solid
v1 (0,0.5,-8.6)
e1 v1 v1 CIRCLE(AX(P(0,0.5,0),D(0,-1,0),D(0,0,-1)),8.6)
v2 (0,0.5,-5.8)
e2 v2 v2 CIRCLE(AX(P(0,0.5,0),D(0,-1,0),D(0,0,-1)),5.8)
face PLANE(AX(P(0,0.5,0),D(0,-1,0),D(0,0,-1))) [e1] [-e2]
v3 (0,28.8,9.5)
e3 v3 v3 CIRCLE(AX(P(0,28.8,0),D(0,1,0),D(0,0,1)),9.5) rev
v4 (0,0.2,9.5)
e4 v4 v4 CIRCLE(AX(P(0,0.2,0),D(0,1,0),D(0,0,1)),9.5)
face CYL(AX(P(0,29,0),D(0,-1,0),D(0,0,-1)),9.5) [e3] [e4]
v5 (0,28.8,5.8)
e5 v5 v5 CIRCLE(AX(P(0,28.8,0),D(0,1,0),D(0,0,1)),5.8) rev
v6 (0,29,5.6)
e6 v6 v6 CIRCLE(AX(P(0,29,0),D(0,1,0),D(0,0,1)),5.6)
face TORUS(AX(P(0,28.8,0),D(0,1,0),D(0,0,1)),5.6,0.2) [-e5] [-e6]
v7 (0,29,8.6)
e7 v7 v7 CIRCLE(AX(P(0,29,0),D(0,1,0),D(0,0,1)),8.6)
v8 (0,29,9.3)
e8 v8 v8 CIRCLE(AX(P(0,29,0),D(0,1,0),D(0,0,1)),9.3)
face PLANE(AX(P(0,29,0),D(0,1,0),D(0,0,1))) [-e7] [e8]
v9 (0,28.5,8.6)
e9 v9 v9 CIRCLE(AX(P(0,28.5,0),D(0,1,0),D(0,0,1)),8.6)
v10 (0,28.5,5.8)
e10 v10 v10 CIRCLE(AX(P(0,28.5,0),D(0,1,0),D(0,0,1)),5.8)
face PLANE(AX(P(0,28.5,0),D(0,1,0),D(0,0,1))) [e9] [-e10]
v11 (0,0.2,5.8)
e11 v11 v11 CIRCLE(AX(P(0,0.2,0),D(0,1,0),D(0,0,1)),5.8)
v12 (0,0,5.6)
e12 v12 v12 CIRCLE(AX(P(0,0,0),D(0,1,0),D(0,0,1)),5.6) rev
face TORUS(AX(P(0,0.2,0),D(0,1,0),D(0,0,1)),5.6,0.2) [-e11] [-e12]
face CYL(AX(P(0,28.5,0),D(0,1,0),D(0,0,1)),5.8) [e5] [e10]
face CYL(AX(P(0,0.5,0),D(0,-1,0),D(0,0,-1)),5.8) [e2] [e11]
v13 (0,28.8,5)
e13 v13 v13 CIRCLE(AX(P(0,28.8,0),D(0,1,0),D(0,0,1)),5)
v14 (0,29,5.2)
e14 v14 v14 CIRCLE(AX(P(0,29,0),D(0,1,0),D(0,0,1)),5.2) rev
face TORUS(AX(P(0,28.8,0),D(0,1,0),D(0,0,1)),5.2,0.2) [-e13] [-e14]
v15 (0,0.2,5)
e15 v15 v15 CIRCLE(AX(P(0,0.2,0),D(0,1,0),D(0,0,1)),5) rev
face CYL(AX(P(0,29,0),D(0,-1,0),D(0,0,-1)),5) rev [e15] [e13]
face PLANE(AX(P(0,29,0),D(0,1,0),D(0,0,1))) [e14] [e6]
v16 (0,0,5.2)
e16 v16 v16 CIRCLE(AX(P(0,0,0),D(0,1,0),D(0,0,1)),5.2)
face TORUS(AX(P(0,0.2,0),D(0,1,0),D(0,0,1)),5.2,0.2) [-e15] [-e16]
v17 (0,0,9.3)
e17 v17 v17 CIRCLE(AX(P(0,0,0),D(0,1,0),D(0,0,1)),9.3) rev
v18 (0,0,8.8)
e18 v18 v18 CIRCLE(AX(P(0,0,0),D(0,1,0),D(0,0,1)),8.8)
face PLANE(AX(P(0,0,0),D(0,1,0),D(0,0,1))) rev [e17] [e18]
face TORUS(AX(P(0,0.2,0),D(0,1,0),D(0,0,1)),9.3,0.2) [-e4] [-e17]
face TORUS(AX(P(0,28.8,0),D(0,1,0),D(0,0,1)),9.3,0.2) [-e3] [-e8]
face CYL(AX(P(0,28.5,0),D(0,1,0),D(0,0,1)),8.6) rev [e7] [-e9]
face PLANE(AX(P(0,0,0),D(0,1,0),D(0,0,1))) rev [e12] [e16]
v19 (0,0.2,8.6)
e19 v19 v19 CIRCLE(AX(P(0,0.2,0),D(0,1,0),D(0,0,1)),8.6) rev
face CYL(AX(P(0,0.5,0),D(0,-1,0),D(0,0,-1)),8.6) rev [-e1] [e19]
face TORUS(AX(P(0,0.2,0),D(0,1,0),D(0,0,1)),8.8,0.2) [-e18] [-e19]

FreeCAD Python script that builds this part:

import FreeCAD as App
import Part
import Sketcher
Q = App.Units.Quantity


def edges_at(feature, points):
    """Names of the edges that pass closest to the given points."""
    edges = feature.Shape.Edges
    near = lambda p: min(range(len(edges)), key=lambda i: edges[i].distToShape(Part.Vertex(*p))[0])
    return sorted({f"Edge{near(p) + 1}" for p in points})

doc = App.newDocument("Part")
body = doc.addObject("PartDesign::Body", "Body")

sketch1 = body.newObject("Sketcher::SketchObject", "Sketch")
sketch1.AttachmentSupport = (doc.getObject("XZ_Plane"), [""])
sketch1.MapMode = "FlatFace"
sketch1.addGeometry([
    Part.Circle(App.Vector(0, 0, 0), App.Vector(0, 0, 1), 10),
    Part.Circle(App.Vector(0, 0, 0), App.Vector(0, 0, 1), 5),
], False)
sketch1.addConstraint([
    Sketcher.Constraint("Coincident", 0, 3, -1, 1),
    Sketcher.Constraint("Coincident", 1, 3, -1, 1),
    Sketcher.Constraint("Diameter", 0, Q("19 mm")),
    Sketcher.Constraint("Diameter", 1, Q("10 mm")),
])
pad1 = body.newObject("PartDesign::Pad", "Pad")
pad1.Profile = sketch1
pad1.Length = 29
pad1.Reversed = True

sketch2 = body.newObject("Sketcher::SketchObject", "Sketch001")
sketch2.AttachmentSupport = (doc.getObject("XZ_Plane"), [""])
sketch2.MapMode = "FlatFace"
sketch2.AttachmentOffset = App.Placement(App.Vector(0, 0, -29), App.Rotation())
sketch2.addGeometry([
    Part.Circle(App.Vector(0, 0, 0), App.Vector(0, 0, 1), 9),
    Part.Circle(App.Vector(0, 0, 0), App.Vector(0, 0, 1), 6),
], False)
sketch2.addConstraint([
    Sketcher.Constraint("Coincident", 0, 3, -1, 1),
    Sketcher.Constraint("Coincident", 1, 3, -1, 1),
    Sketcher.Constraint("Diameter", 0, Q("17.2 mm")),
    Sketcher.Constraint("Diameter", 1, Q("11.6 mm")),
])
pocket1 = body.newObject("PartDesign::Pocket", "Pocket")
pocket1.Profile = sketch2
pocket1.Length = 0.5
pocket1.Reversed = True

sketch3 = body.newObject("Sketcher::SketchObject", "Sketch002")
sketch3.AttachmentSupport = (doc.getObject("XZ_Plane"), [""])
sketch3.MapMode = "FlatFace"
sketch3.addGeometry([
    Part.Circle(App.Vector(0, 0, 0), App.Vector(0, 0, 1), 9),
    Part.Circle(App.Vector(0, 0, 0), App.Vector(0, 0, 1), 6),
], False)
sketch3.addConstraint([
    Sketcher.Constraint("Coincident", 0, 3, -1, 1),
    Sketcher.Constraint("Coincident", 1, 3, -1, 1),
    Sketcher.Constraint("Diameter", 0, Q("17.2 mm")),
    Sketcher.Constraint("Diameter", 1, Q("11.6 mm")),
])
pocket2 = body.newObject("PartDesign::Pocket", "Pocket001")
pocket2.Profile = sketch3
pocket2.Length = 0.5
doc.recompute()

fillet = body.newObject("PartDesign::Fillet", "Fillet")
fillet.Base = (pocket2, edges_at(pocket2, [
    (-9.5, 0, 0),
    (-9.5, 29, 0),
    (-8.6, 0, 0),
    (-5.8, 0, 0),
    (-5.8, 29, 0),
    (-5, 0, 0),
    (-5, 29, 0),
]))
fillet.Radius = 0.2

doc.recompute()
